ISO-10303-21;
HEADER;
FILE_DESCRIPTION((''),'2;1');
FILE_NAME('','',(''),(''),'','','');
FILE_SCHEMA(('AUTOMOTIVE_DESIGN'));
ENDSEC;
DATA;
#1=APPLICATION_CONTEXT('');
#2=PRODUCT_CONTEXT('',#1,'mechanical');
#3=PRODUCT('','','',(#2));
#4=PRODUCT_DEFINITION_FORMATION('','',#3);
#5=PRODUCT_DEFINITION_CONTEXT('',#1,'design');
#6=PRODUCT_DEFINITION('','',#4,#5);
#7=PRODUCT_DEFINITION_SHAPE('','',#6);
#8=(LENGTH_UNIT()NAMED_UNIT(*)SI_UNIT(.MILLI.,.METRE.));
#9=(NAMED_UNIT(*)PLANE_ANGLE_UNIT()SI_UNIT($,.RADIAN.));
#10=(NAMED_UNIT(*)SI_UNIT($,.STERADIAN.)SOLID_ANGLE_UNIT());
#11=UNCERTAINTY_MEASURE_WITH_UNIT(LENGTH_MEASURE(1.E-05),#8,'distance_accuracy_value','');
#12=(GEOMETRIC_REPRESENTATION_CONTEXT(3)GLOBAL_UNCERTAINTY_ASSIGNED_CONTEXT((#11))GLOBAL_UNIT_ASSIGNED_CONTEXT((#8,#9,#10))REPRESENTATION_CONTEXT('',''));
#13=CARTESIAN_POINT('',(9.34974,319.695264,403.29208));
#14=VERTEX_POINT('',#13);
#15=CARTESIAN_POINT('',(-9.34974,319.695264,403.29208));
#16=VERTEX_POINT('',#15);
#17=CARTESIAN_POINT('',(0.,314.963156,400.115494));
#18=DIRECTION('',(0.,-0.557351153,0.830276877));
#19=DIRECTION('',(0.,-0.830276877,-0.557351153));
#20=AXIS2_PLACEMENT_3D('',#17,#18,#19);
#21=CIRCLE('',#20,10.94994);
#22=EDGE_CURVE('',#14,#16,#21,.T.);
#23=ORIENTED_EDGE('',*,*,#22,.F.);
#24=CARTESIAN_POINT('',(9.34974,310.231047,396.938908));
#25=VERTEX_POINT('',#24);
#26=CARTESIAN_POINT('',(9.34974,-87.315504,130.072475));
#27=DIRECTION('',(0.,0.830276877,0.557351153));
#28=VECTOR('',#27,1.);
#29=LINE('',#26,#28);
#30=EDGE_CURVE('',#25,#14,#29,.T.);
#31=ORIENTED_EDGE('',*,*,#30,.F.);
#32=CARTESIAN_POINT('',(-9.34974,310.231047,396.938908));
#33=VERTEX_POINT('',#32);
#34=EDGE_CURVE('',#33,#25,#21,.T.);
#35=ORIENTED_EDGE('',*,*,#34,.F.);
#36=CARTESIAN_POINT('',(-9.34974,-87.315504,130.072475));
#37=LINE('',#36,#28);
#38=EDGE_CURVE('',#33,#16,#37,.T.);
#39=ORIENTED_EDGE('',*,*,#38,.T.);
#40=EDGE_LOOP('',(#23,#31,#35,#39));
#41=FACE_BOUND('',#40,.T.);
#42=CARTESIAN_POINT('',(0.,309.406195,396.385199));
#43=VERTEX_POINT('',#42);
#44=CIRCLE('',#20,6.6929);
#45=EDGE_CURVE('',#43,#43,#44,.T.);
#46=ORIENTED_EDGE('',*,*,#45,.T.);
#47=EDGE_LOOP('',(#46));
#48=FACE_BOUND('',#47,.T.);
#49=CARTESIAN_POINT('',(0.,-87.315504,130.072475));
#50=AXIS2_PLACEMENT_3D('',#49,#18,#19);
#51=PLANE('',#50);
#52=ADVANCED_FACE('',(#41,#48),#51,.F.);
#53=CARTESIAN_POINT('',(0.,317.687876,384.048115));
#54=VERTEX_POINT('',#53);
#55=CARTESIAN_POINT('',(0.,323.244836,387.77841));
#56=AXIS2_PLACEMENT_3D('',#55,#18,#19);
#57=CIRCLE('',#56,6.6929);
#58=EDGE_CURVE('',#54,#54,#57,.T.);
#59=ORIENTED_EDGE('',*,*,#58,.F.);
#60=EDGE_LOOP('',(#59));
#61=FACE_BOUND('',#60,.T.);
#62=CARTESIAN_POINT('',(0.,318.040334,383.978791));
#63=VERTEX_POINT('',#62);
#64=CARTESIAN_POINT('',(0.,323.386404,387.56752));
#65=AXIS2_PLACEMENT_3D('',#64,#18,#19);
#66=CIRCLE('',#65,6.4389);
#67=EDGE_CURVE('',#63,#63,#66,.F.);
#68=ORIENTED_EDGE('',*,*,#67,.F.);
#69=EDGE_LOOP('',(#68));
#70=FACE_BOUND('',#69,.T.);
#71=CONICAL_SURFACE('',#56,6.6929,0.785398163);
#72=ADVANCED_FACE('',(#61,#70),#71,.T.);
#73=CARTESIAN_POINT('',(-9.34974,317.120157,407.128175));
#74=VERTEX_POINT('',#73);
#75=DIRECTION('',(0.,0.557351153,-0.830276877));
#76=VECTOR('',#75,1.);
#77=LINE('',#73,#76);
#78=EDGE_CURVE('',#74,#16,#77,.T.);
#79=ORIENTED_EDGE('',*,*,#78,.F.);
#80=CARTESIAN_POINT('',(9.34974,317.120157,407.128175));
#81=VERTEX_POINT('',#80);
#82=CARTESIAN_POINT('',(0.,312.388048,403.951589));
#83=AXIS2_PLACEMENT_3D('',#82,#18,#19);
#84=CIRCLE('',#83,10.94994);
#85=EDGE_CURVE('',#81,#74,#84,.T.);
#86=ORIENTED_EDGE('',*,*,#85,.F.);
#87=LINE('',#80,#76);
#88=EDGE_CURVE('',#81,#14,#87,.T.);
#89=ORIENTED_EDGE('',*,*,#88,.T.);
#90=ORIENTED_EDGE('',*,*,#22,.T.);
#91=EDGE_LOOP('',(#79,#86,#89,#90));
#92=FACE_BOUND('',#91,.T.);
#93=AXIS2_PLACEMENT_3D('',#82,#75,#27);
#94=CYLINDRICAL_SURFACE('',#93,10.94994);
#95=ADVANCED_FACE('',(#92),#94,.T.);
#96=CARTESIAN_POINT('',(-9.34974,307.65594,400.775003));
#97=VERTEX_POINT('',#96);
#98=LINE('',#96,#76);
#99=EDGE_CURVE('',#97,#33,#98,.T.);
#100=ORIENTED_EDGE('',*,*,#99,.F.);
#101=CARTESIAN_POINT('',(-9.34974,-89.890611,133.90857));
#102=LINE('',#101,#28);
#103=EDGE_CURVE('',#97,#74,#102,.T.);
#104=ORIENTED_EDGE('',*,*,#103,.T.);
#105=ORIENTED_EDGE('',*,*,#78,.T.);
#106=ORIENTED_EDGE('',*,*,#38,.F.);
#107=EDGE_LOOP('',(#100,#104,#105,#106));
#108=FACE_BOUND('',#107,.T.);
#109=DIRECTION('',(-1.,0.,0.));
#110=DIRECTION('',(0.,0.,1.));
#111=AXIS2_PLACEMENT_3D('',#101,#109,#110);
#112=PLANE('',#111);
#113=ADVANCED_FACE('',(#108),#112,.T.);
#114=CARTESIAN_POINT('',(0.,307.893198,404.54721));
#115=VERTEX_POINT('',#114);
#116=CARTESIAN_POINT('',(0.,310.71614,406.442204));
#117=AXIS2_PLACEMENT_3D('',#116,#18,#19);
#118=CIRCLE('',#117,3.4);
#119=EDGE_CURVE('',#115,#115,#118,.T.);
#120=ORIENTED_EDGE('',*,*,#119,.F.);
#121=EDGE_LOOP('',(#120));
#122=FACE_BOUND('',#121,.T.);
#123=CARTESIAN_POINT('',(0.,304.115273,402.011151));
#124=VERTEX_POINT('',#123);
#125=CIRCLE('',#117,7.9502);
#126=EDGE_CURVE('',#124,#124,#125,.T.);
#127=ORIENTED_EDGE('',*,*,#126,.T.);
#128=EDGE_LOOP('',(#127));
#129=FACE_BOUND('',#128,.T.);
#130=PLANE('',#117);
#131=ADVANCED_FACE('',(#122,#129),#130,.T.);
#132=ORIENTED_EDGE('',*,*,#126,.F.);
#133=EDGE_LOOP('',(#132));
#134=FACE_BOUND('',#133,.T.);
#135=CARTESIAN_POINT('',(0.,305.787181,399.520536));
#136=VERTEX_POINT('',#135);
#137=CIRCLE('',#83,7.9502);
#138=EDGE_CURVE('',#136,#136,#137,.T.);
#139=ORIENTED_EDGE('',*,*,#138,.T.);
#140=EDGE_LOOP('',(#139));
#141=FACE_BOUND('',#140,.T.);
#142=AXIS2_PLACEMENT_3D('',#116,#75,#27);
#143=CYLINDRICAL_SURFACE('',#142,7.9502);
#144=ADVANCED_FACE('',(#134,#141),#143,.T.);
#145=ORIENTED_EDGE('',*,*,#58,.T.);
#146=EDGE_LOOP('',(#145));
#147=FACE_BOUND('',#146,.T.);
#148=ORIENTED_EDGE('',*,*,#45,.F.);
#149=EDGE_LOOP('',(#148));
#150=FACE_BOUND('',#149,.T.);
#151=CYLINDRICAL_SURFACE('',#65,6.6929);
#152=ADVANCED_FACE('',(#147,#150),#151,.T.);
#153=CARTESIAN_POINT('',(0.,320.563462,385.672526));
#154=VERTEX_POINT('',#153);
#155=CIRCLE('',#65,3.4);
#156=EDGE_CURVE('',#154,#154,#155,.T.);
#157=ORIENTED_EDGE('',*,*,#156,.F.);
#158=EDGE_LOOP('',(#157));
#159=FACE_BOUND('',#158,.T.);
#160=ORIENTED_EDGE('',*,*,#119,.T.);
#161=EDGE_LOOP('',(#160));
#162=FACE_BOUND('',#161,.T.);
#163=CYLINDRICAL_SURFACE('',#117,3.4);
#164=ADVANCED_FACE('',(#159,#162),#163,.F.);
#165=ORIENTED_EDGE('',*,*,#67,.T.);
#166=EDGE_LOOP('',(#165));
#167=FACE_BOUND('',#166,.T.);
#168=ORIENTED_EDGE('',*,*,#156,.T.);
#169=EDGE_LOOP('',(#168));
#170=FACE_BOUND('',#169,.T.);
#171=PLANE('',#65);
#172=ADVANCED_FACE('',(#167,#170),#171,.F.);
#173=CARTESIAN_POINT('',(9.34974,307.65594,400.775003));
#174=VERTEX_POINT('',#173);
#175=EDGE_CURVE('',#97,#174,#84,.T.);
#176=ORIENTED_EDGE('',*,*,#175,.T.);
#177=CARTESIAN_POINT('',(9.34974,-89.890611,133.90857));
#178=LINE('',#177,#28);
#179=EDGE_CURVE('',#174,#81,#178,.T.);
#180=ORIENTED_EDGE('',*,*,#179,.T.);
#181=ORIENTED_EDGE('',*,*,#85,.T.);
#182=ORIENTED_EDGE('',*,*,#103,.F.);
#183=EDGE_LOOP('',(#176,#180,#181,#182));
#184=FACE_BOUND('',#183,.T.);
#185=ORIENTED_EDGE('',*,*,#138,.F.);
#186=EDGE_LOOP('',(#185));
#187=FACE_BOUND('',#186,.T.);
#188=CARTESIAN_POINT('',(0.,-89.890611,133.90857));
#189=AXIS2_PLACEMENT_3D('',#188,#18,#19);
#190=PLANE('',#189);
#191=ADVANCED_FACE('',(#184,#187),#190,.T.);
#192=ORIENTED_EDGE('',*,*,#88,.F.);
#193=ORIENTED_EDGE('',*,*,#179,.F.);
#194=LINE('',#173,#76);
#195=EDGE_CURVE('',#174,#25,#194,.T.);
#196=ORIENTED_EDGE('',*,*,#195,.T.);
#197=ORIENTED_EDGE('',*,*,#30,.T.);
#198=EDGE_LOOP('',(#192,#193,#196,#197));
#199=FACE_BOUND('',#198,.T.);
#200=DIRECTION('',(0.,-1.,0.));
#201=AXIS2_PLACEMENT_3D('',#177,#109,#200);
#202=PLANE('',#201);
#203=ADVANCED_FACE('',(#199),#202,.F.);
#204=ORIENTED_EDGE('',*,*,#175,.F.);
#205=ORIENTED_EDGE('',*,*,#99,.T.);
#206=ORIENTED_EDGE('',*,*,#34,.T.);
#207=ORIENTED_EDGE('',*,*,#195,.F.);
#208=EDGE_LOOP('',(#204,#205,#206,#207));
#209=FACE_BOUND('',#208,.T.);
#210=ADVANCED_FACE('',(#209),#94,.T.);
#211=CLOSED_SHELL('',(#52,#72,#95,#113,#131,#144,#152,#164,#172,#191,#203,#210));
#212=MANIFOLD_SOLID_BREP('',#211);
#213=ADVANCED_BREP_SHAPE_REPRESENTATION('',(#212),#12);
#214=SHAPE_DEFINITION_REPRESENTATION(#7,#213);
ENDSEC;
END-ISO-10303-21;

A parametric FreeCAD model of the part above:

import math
import FreeCAD as App
import Part
import Sketcher
Q = App.Units.Quantity


def edges_at(feature, points):
    """Names of the edges that pass closest to the given points."""
    edges = feature.Shape.Edges
    near = lambda p: min(range(len(edges)), key=lambda i: edges[i].distToShape(Part.Vertex(*p))[0])
    return sorted({f"Edge{near(p) + 1}" for p in points})

doc = App.newDocument("Part")
body = doc.addObject("PartDesign::Body", "Body")

# Sketch on an angled plane
sketch1 = doc.addObject("Sketcher::SketchObject", "Sketch")
body.addObject(sketch1)
sketch1.Placement = App.Placement(App.Vector(0, -87.315504, 130.072475), App.Rotation(App.Vector(1, 0, 0), App.Vector(0, 0.830276877, 0.557351153), App.Vector(0, -0.557351153, 0.830276877), "ZXY"))
sketch1.addGeometry(Part.Circle(App.Vector(0, 484.511457, 0), App.Vector(0, 0, 1), 6.6929), False)
sketch1.addConstraint(Sketcher.Constraint("PointOnObject", 0, 3, -2))
sketch1.addConstraint(Sketcher.Constraint("Diameter", 0, Q("0.527 in")))
sketch1.addConstraint(Sketcher.Constraint("DistanceY", -1, 1, 0, 3, Q("484.511457 mm")))
pad1 = doc.addObject("PartDesign::Pad", "Pad")
body.addObject(pad1)
pad1.Profile = sketch1
pad1.Length = Q("0.595 in")
pad1.Reversed = True

# Sketch on an angled plane
sketch2 = doc.addObject("Sketcher::SketchObject", "Sketch001")
body.addObject(sketch2)
sketch2.Placement = App.Placement(App.Vector(0, -87.315504, 130.072475), App.Rotation(App.Vector(1, 0, 0), App.Vector(0, 0.830276877, 0.557351153), App.Vector(0, -0.557351153, 0.830276877), "ZXY"))
sketch2.addGeometry(Part.LineSegment(App.Vector(-9.34974, 490.210891, 0), App.Vector(-9.34974, 478.812023, 0)), False)
sketch2.addGeometry(Part.ArcOfCircle(Part.Circle(App.Vector(0, 484.511457, 0), App.Vector(0, 0, 1), 10.94994), math.radians(-148.634263), math.radians(-31.365737)), False)
sketch2.addGeometry(Part.LineSegment(App.Vector(9.34974, 478.812023, 0), App.Vector(9.34974, 490.210891, 0)), False)
sketch2.addGeometry(Part.ArcOfCircle(Part.Circle(App.Vector(0, 484.511457, 0), App.Vector(0, 0, 1), 10.94994), math.radians(31.365737), math.radians(148.634263)), False)
sketch2.addConstraint(Sketcher.Constraint("Coincident", 0, 2, 1, 1))
sketch2.addConstraint(Sketcher.Constraint("Coincident", 1, 2, 2, 1))
sketch2.addConstraint(Sketcher.Constraint("Coincident", 2, 2, 3, 1))
sketch2.addConstraint(Sketcher.Constraint("Coincident", 3, 2, 0, 1))
sketch2.addConstraint(Sketcher.Constraint("Vertical", 0))
sketch2.addConstraint(Sketcher.Constraint("Vertical", 2))
sketch2.addConstraint(Sketcher.Constraint("Coincident", 3, 3, 1, 3))
sketch2.addConstraint(Sketcher.Constraint("Equal", 1, 3))
sketch2.addConstraint(Sketcher.Constraint("Symmetric", 0, 2, 1, 2, -2))
sketch2.addConstraint(Sketcher.Constraint("Radius", 1, Q("0.4311 in")))
sketch2.addConstraint(Sketcher.Constraint("DistanceX", 0, 2, -1, 1, Q("0.3681 in")))
sketch2.addConstraint(Sketcher.Constraint("DistanceY", -1, 1, 2, 2, Q("490.210891 mm")))
pad2 = doc.addObject("PartDesign::Pad", "Pad001")
body.addObject(pad2)
pad2.Profile = sketch2
pad2.Length = Q("0.1819 in")

# Sketch on an angled plane
sketch3 = doc.addObject("Sketcher::SketchObject", "Sketch002")
body.addObject(sketch3)
sketch3.Placement = App.Placement(App.Vector(0, -89.890611, 133.90857), App.Rotation(App.Vector(1, 0, 0), App.Vector(0, 0.830276877, 0.557351153), App.Vector(0, -0.557351153, 0.830276877), "ZXY"))
sketch3.addGeometry(Part.Circle(App.Vector(0, 484.511457, 0), App.Vector(0, 0, 1), 7.9502), False)
sketch3.addConstraint(Sketcher.Constraint("PointOnObject", 0, 3, -2))
sketch3.addConstraint(Sketcher.Constraint("Diameter", 0, Q("0.626 in")))
sketch3.addConstraint(Sketcher.Constraint("DistanceY", -1, 1, 0, 3, Q("484.511457 mm")))
pad3 = doc.addObject("PartDesign::Pad", "Pad002")
body.addObject(pad3)
pad3.Profile = sketch3
pad3.Length = Q("0.1181 in")

# Sketch on an angled plane
sketch4 = doc.addObject("Sketcher::SketchObject", "Sketch003")
body.addObject(sketch4)
sketch4.Placement = App.Placement(App.Vector(0, -91.562519, 136.399184), App.Rotation(App.Vector(1, 0, 0), App.Vector(0, 0.830276877, 0.557351153), App.Vector(0, -0.557351153, 0.830276877), "ZXY"))
sketch4.addGeometry(Part.Circle(App.Vector(0, 484.511457, 0), App.Vector(0, 0, 1), 3.4), False)
sketch4.addConstraint(Sketcher.Constraint("PointOnObject", 0, 3, -2))
sketch4.addConstraint(Sketcher.Constraint("Diameter", 0, Q("6.8 mm")))
sketch4.addConstraint(Sketcher.Constraint("DistanceY", -1, 1, 0, 3, Q("484.511457 mm")))
doc.recompute()
hole = doc.addObject("PartDesign::Hole", "Hole")
body.addObject(hole)
hole.Profile = sketch4
hole.ThreadType = "None"
hole.Diameter = 6.8
hole.DepthType = "ThroughAll"
doc.recompute()

chamfer = doc.addObject("PartDesign::Chamfer", "Chamfer")
body.addObject(chamfer)
chamfer.Base = (hole, edges_at(hole, [(-6.693, 323.386, 387.568)]))
chamfer.Size = Q("0.01 in")

doc.recompute()
